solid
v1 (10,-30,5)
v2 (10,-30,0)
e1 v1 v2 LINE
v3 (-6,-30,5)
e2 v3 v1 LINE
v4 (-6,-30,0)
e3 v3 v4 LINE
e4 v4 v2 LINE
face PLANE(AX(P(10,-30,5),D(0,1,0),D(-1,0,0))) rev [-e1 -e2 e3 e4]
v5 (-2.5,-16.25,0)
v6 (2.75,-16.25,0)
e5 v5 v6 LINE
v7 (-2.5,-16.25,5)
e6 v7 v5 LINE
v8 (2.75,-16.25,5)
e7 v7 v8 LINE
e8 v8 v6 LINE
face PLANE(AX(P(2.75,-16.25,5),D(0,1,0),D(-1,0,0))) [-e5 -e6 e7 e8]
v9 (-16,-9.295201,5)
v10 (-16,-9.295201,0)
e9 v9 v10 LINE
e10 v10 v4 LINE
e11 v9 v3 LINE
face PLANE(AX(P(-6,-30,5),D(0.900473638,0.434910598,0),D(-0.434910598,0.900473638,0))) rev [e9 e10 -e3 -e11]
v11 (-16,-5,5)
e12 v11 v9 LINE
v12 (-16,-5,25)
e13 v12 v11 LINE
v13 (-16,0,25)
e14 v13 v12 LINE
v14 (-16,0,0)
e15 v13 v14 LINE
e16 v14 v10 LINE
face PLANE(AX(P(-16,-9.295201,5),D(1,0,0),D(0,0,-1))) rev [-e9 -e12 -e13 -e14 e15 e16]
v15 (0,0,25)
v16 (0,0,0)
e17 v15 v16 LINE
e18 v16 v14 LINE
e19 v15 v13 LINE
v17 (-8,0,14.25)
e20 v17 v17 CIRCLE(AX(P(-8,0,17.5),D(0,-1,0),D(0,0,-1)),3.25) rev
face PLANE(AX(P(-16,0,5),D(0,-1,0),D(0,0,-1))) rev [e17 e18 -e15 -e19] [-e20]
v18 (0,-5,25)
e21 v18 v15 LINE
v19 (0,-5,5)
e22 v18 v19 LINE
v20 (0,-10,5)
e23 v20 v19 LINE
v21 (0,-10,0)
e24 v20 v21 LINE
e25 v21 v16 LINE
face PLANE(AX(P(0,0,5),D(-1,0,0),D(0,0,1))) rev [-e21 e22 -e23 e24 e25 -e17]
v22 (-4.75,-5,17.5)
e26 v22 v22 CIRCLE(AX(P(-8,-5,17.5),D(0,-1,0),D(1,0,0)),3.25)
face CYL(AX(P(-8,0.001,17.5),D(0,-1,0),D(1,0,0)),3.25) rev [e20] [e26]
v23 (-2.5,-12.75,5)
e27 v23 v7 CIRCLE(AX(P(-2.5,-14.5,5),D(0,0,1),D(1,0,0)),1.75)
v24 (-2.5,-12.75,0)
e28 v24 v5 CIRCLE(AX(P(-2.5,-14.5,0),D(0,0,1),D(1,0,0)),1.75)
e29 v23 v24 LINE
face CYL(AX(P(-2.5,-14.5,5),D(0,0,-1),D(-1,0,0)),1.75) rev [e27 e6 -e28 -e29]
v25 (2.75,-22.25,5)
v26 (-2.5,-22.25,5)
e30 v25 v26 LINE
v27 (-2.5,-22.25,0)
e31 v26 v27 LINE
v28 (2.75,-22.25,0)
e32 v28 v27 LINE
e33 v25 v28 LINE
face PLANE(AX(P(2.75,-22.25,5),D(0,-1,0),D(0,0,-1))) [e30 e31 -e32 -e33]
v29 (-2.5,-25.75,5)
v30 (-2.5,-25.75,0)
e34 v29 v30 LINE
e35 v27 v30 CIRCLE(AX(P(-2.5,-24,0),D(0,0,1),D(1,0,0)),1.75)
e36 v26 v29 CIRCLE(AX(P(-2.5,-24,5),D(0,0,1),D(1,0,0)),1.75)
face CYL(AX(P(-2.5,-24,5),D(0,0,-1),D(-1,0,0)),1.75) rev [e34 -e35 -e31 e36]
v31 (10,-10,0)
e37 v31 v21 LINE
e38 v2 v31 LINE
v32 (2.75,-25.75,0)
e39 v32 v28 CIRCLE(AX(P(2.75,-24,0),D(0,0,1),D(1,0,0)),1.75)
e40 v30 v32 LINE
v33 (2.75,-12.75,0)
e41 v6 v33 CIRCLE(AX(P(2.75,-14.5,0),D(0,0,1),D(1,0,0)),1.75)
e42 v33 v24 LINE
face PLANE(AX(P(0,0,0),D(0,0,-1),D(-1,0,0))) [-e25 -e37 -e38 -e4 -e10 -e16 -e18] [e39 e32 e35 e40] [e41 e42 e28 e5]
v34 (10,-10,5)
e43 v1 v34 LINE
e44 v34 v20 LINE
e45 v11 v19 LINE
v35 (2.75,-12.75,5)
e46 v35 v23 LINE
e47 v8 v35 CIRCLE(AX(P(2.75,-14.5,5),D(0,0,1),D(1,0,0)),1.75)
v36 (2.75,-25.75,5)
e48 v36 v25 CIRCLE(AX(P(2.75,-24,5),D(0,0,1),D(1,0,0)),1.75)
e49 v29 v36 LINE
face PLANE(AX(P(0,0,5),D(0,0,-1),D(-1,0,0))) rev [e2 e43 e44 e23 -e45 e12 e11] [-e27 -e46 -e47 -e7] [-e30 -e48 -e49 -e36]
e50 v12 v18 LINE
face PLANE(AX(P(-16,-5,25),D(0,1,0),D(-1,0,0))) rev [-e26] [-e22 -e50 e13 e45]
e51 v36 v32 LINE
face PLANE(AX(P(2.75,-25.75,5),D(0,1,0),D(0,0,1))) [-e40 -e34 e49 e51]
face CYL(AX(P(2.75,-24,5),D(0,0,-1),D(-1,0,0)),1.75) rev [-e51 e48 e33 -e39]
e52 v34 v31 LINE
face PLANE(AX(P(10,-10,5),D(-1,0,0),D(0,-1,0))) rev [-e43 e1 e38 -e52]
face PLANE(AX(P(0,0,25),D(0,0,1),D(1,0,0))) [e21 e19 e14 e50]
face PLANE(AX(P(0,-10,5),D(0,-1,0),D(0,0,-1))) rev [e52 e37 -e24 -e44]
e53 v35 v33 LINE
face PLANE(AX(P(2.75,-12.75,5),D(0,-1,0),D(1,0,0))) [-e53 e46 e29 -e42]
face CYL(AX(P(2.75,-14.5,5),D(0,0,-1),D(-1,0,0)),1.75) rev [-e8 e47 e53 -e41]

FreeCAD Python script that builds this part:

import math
import FreeCAD as App
import Part
import Sketcher
from FreeCAD import Vector
Q = App.Units.Quantity

doc = App.newDocument("Part")
body = doc.addObject("PartDesign::Body", "Body")

sketch1 = body.newObject("Sketcher::SketchObject", "Sketch")
sketch1.AttachmentSupport = (doc.getObject("XY_Plane"), [""])
sketch1.MapMode = "FlatFace"
sketch1.addGeometry([
    Part.LineSegment(Vector(0, 0, 0), Vector(-16, 0, 0)),
    Part.LineSegment(Vector(-16, 0, 0), Vector(-16, -9.3, 0)),
    Part.LineSegment(Vector(-16, -9.3, 0), Vector(-6, -30, 0)),
    Part.LineSegment(Vector(-6, -30, 0), Vector(10, -30, 0)),
    Part.LineSegment(Vector(10, -30, 0), Vector(10, -10, 0)),
    Part.LineSegment(Vector(10, -10, 0), Vector(0, -10, 0)),
    Part.LineSegment(Vector(0, -10, 0), Vector(0, 0, 0)),
    Part.ArcOfCircle(Part.Circle(Vector(2.8, -24, 0), Vector(0, 0, 1), 1.8), math.radians(-90), math.radians(90)),
    Part.LineSegment(Vector(2.8, -25.8, 0), Vector(-2.5, -25.8, 0)),
    Part.ArcOfCircle(Part.Circle(Vector(-2.5, -24, 0), Vector(0, 0, 1), 1.8), math.radians(90), math.radians(270)),
    Part.LineSegment(Vector(-2.5, -22.2, 0), Vector(2.8, -22.2, 0)),
    Part.ArcOfCircle(Part.Circle(Vector(2.8, -14.5, 0), Vector(0, 0, 1), 1.8), math.radians(-90), math.radians(90)),
    Part.LineSegment(Vector(2.8, -16.2, 0), Vector(-2.5, -16.2, 0)),
    Part.ArcOfCircle(Part.Circle(Vector(-2.5, -14.5, 0), Vector(0, 0, 1), 1.8), math.radians(90), math.radians(270)),
    Part.LineSegment(Vector(-2.5, -12.8, 0), Vector(2.8, -12.8, 0)),
], False)
sketch1.addConstraint([
    Sketcher.Constraint("Coincident", 0, 2, 1, 1),
    Sketcher.Constraint("Coincident", 1, 2, 2, 1),
    Sketcher.Constraint("Coincident", 2, 2, 3, 1),
    Sketcher.Constraint("Coincident", 3, 2, 4, 1),
    Sketcher.Constraint("Coincident", 4, 2, 5, 1),
    Sketcher.Constraint("Coincident", 5, 2, 6, 1),
    Sketcher.Constraint("Coincident", 6, 2, 0, 1),
    Sketcher.Constraint("Tangent", 7, 1, 8, 1),
    Sketcher.Constraint("Tangent", 8, 2, 9, 2),
    Sketcher.Constraint("Tangent", 9, 1, 10, 1),
    Sketcher.Constraint("Tangent", 10, 2, 7, 2),
    Sketcher.Constraint("Tangent", 11, 1, 12, 1),
    Sketcher.Constraint("Tangent", 12, 2, 13, 2),
    Sketcher.Constraint("Tangent", 13, 1, 14, 1),
    Sketcher.Constraint("Tangent", 14, 2, 11, 2),
    Sketcher.Constraint("Horizontal", 0),
    Sketcher.Constraint("Vertical", 1),
    Sketcher.Constraint("Horizontal", 3),
    Sketcher.Constraint("Vertical", 4),
    Sketcher.Constraint("Horizontal", 5),
    Sketcher.Constraint("Vertical", 6),
    Sketcher.Constraint("Horizontal", 8),
    Sketcher.Constraint("Horizontal", 10),
    Sketcher.Constraint("Horizontal", 12),
    Sketcher.Constraint("Horizontal", 14),
    Sketcher.Constraint("Coincident", 6, 2, -1, 1),
    Sketcher.Constraint("Equal", 9, 11),
    Sketcher.Constraint("Vertical", 7, 3, 11, 3),
    Sketcher.Constraint("Vertical", 9, 3, 13, 3),
    Sketcher.Constraint("Equal", 0, 3),
    Sketcher.Constraint("Equal", 5, 6),
    Sketcher.Constraint("DistanceX", 0, 2, 0, 1, Q("16 mm")),
    Sketcher.Constraint("DistanceX", 5, 2, 5, 1, Q("10 mm")),
    Sketcher.Constraint("DistanceY", 4, 1, 4, 2, Q("20 mm")),
    Sketcher.Constraint("Radius", 7, Q("1.75 mm")),
    Sketcher.Constraint("DistanceY", 7, 3, -1, 1, Q("24 mm")),
    Sketcher.Constraint("DistanceY", 10, 2, 11, 1, Q("6 mm")),
    Sketcher.Constraint("DistanceX", 8, 2, 8, 1, Q("5.25 mm")),
    Sketcher.Constraint("DistanceX", 9, 3, -1, 1, Q("2.5 mm")),
    Sketcher.Constraint("DistanceY", 1, 2, 1, 1, Q("9.295201 mm")),
])
pad1 = body.newObject("PartDesign::Pad", "Pad")
pad1.Profile = sketch1
pad1.Length = 5

sketch2 = body.newObject("Sketcher::SketchObject", "Sketch001")
sketch2.AttachmentSupport = (doc.getObject("XY_Plane"), [""])
sketch2.MapMode = "FlatFace"
sketch2.AttachmentOffset = App.Placement(Vector(0, 0, 5), App.Rotation())
sketch2.addGeometry([
    Part.LineSegment(Vector(-16, 0, 0), Vector(-16, -5, 0)),
    Part.LineSegment(Vector(-16, -5, 0), Vector(0, -5, 0)),
    Part.LineSegment(Vector(0, -5, 0), Vector(0, 0, 0)),
    Part.LineSegment(Vector(0, 0, 0), Vector(-16, 0, 0)),
], False)
sketch2.addConstraint([
    Sketcher.Constraint("Coincident", 0, 2, 1, 1),
    Sketcher.Constraint("Coincident", 1, 2, 2, 1),
    Sketcher.Constraint("Coincident", 2, 2, 3, 1),
    Sketcher.Constraint("Coincident", 3, 2, 0, 1),
    Sketcher.Constraint("Vertical", 0),
    Sketcher.Constraint("Horizontal", 1),
    Sketcher.Constraint("Vertical", 2),
    Sketcher.Constraint("Horizontal", 3),
    Sketcher.Constraint("Coincident", 2, 2, -1, 1),
    Sketcher.Constraint("DistanceX", 1, 1, 1, 2, Q("16 mm")),
    Sketcher.Constraint("DistanceY", 0, 2, 0, 1, Q("5 mm")),
])
pad2 = body.newObject("PartDesign::Pad", "Pad001")
pad2.Profile = sketch2
pad2.Length = 20

sketch3 = body.newObject("Sketcher::SketchObject", "Sketch002")
sketch3.AttachmentSupport = (doc.getObject("XZ_Plane"), [""])
sketch3.MapMode = "FlatFace"
sketch3.AttachmentOffset = App.Placement(Vector(0, 0, 5), App.Rotation())
sketch3.addGeometry(Part.Circle(Vector(-8, 17.5, 0), Vector(0, 0, 1), 3.2), False)
sketch3.addConstraint([
    Sketcher.Constraint("Diameter", 0, Q("6.5 mm")),
    Sketcher.Constraint("DistanceX", 0, 3, -1, 1, Q("8 mm")),
    Sketcher.Constraint("DistanceY", -1, 1, 0, 3, Q("17.5 mm")),
])
pocket1 = body.newObject("PartDesign::Pocket", "Pocket")
pocket1.Profile = sketch3
pocket1.Type = "UpToFirst"

doc.recompute()
